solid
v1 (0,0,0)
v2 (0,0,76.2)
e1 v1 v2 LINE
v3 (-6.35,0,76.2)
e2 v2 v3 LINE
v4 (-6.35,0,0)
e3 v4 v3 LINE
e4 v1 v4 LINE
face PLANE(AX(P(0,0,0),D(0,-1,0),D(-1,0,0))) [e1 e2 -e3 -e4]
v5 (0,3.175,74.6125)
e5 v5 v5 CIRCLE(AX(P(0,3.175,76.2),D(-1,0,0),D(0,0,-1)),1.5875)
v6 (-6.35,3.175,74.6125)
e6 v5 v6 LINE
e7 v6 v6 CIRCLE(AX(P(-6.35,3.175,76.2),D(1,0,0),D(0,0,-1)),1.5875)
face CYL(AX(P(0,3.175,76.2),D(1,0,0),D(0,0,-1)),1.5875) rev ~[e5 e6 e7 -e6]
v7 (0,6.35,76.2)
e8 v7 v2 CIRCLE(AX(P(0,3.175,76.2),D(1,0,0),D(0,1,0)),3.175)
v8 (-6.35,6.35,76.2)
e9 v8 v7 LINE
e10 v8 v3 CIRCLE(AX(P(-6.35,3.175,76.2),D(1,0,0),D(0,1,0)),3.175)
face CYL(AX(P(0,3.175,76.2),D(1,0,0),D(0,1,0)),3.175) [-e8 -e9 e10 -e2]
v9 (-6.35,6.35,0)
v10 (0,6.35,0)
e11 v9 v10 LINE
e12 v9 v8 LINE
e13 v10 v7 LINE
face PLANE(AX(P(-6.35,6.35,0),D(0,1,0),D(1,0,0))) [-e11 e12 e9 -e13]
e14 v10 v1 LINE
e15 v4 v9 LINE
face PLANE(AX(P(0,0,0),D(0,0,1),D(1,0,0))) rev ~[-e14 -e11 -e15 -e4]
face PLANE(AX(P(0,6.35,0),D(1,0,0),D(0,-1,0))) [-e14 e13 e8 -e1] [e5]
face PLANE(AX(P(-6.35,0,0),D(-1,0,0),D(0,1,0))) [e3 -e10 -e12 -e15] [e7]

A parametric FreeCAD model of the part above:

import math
import FreeCAD as App
import Part
import Sketcher
from FreeCAD import Vector
Q = App.Units.Quantity

doc = App.newDocument("Part")
params = doc.addObject("Spreadsheet::Sheet", "Params")
for row, (alias, value) in enumerate([
    ("sketch1_width", "0.25 in"),
    ("pad1_length", "3 in"),
    ("sketch2_radius", "0.125 in"),
    ("pad2_length", "0.25 in"),
    ("sketch3_diameter", "0.125 in"),
    ("pocket1_length", "0.25 in"),
], start=1):
    params.set(f"A{row}", alias)
    params.set(f"B{row}", "=" + value)
    params.setAlias(f"B{row}", alias)

body = doc.addObject("PartDesign::Body", "Body")

sketch1 = body.newObject("Sketcher::SketchObject", "Sketch")
sketch1.AttachmentSupport = (doc.getObject("XY_Plane"), [""])
sketch1.MapMode = "FlatFace"
sketch1.addGeometry(Part.LineSegment(Vector(-6, 0, 0), Vector(0, 0, 0)), False)
sketch1.addGeometry(Part.LineSegment(Vector(0, 0, 0), Vector(0, 6, 0)), False)
sketch1.addGeometry(Part.LineSegment(Vector(0, 6, 0), Vector(-6, 6, 0)), False)
sketch1.addGeometry(Part.LineSegment(Vector(-6, 6, 0), Vector(-6, 0, 0)), False)
sketch1.addConstraint(Sketcher.Constraint("Coincident", 0, 2, 1, 1))
sketch1.addConstraint(Sketcher.Constraint("Coincident", 1, 2, 2, 1))
sketch1.addConstraint(Sketcher.Constraint("Coincident", 2, 2, 3, 1))
sketch1.addConstraint(Sketcher.Constraint("Coincident", 3, 2, 0, 1))
sketch1.addConstraint(Sketcher.Constraint("Horizontal", 0))
sketch1.addConstraint(Sketcher.Constraint("Vertical", 1))
sketch1.addConstraint(Sketcher.Constraint("Horizontal", 2))
sketch1.addConstraint(Sketcher.Constraint("Vertical", 3))
sketch1.addConstraint(Sketcher.Constraint("Coincident", 0, 2, -1, 1))
sketch1.addConstraint(Sketcher.Constraint("Equal", 2, 1))
sketch1.addConstraint(Sketcher.Constraint("DistanceX", 0, 1, 0, 2, Q("0.25 in")))
sketch1.setExpression("Constraints[10]", "Params.sketch1_width")
pad1 = body.newObject("PartDesign::Pad", "Pad")
pad1.Profile = sketch1
pad1.setExpression("Length", "Params.pad1_length")

sketch2 = body.newObject("Sketcher::SketchObject", "Sketch001")
sketch2.AttachmentSupport = (doc.getObject("YZ_Plane"), [""])
sketch2.MapMode = "FlatFace"
sketch2.addGeometry(Part.ArcOfCircle(Part.Circle(Vector(3.2, 76.2, 0), Vector(0, 0, 1), 3.2), math.radians(0), math.radians(180)), False)
sketch2.addGeometry(Part.LineSegment(Vector(0, 76.2, 0), Vector(6.3, 76.2, 0)), False)
sketch2.addConstraint(Sketcher.Constraint("Coincident", 0, 1, 1, 2))
sketch2.addConstraint(Sketcher.Constraint("Coincident", 1, 1, 0, 2))
sketch2.addConstraint(Sketcher.Constraint("Horizontal", 1))
sketch2.addConstraint(Sketcher.Constraint("PointOnObject", 1, 1, -2))
sketch2.addConstraint(Sketcher.Constraint("Radius", 0, Q("0.125 in")))
sketch2.addConstraint(Sketcher.Constraint("DistanceY", -1, 1, 0, 3, Q("3 in")))
sketch2.addConstraint(Sketcher.Constraint("DistanceY", -1, 1, 0, 1, Q("3 in")))
sketch2.setExpression("Constraints[4]", "Params.sketch2_radius")
pad2 = body.newObject("PartDesign::Pad", "Pad001")
pad2.Profile = sketch2
pad2.setExpression("Length", "Params.pad2_length")
pad2.Reversed = True

sketch3 = body.newObject("Sketcher::SketchObject", "Sketch002")
sketch3.AttachmentSupport = (doc.getObject("YZ_Plane"), [""])
sketch3.MapMode = "FlatFace"
sketch3.addGeometry(Part.Circle(Vector(3.2, 76.2, 0), Vector(0, 0, 1), 1.6), False)
sketch3.addConstraint(Sketcher.Constraint("Diameter", 0, Q("0.125 in")))
sketch3.addConstraint(Sketcher.Constraint("DistanceX", -1, 1, 0, 3, Q("0.125 in")))
sketch3.addConstraint(Sketcher.Constraint("DistanceY", -1, 1, 0, 3, Q("3 in")))
sketch3.setExpression("Constraints[0]", "Params.sketch3_diameter")
pocket1 = body.newObject("PartDesign::Pocket", "Pocket")
pocket1.Profile = sketch3
pocket1.setExpression("Length", "Params.pocket1_length")

doc.recompute()
